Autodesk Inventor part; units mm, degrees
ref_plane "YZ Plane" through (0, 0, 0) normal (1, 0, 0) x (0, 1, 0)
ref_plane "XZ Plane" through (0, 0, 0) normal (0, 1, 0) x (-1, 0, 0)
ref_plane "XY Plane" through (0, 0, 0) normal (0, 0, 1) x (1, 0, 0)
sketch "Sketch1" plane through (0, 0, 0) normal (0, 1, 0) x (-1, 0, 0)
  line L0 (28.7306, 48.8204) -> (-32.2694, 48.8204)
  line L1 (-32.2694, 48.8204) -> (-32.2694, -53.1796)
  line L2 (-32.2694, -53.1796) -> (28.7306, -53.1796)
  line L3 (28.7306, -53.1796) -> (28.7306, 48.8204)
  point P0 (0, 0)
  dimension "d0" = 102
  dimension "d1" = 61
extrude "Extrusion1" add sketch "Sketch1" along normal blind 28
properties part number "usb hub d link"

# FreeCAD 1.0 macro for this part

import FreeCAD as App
import Part
import Sketcher
Q = App.Units.Quantity


def add_polygon(sketch, points):
    """Adds a closed chain of lines whose ends are joined by coincident constraints."""
    first, n = sketch.GeometryCount, len(points)
    for a, b in zip(points, points[1:] + points[:1]):
        sketch.addGeometry(Part.LineSegment(App.Vector(*a, 0), App.Vector(*b, 0)), False)
    for i in range(n):
        sketch.addConstraint(Sketcher.Constraint("Coincident", first + i, 2, first + (i + 1) % n, 1))

doc = App.newDocument("Part")
params = doc.addObject("Spreadsheet::Sheet", "Params")
for row, (alias, value) in enumerate([
    ("sketch1_width", "61 mm"),
    ("sketch1_height", "102 mm"),
    ("pad1_length", "28 mm"),
], start=1):
    params.set(f"A{row}", alias)
    params.set(f"B{row}", "=" + value)
    params.setAlias(f"B{row}", alias)

body = doc.addObject("PartDesign::Body", "Body")

# Sketch on XZ plane
sketch1 = body.newObject("Sketcher::SketchObject", "Sketch")
sketch1.AttachmentSupport = (doc.getObject("XZ_Plane"), [""])
sketch1.MapMode = "FlatFace"
add_polygon(sketch1, [(-29, -53), (-29, 49), (32, 49), (32, -53)])  # lines 0-3
sketch1.addConstraint(Sketcher.Constraint("Vertical", 0))
sketch1.addConstraint(Sketcher.Constraint("Horizontal", 1))
sketch1.addConstraint(Sketcher.Constraint("Vertical", 2))
sketch1.addConstraint(Sketcher.Constraint("Horizontal", 3))
sketch1.addConstraint(Sketcher.Constraint("DistanceX", 1, 1, 1, 2, Q("61 mm")))
sketch1.addConstraint(Sketcher.Constraint("DistanceY", 0, 1, 0, 2, Q("102 mm")))
sketch1.addConstraint(Sketcher.Constraint("DistanceX", 0, 2, -1, 1, Q("28.7306 mm")))
sketch1.addConstraint(Sketcher.Constraint("DistanceY", -1, 1, 0, 2, Q("48.8204 mm")))
sketch1.setExpression("Constraints[8]", "Params.sketch1_width")
sketch1.setExpression("Constraints[9]", "Params.sketch1_height")
pad1 = body.newObject("PartDesign::Pad", "Pad")
pad1.Profile = sketch1
pad1.setExpression("Length", "Params.pad1_length")
pad1.Reversed = True

doc.recompute()
